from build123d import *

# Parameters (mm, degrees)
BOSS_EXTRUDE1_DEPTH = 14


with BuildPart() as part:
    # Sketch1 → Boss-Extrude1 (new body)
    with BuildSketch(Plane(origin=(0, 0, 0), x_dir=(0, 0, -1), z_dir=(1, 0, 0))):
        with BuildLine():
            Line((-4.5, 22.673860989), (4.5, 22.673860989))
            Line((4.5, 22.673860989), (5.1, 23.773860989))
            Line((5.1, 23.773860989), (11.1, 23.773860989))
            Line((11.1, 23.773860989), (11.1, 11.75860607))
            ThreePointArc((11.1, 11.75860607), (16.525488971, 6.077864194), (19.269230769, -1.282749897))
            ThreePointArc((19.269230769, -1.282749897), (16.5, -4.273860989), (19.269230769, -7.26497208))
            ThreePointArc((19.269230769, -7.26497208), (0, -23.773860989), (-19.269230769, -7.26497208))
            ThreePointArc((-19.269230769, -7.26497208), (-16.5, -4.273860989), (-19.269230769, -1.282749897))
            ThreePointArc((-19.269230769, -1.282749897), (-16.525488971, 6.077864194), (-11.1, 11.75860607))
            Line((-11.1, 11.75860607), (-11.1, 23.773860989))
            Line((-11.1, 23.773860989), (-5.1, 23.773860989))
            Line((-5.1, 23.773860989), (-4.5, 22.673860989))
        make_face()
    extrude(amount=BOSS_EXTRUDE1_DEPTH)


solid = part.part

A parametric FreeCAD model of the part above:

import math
import FreeCAD as App
import Part
import Sketcher
from FreeCAD import Vector
Q = App.Units.Quantity

doc = App.newDocument("Part")
body = doc.addObject("PartDesign::Body", "Body")

sketch1 = body.newObject("Sketcher::SketchObject", "Sketch")
sketch1.AttachmentSupport = (doc.getObject("YZ_Plane"), [""])
sketch1.MapMode = "FlatFace"
sketch1.addGeometry([
    Part.LineSegment(Vector(22.7, -4.5, 0), Vector(22.7, 4.5, 0)),
    Part.LineSegment(Vector(22.7, 4.5, 0), Vector(23.8, 5.1, 0)),
    Part.LineSegment(Vector(23.8, 5.1, 0), Vector(23.8, 11.1, 0)),
    Part.LineSegment(Vector(23.8, 11.1, 0), Vector(11.8, 11.1, 0)),
    Part.ArcOfCircle(Part.Circle(Vector(-4.3, 0, 0), Vector(0, 0, 1), 19.5), math.radians(35), math.radians(81)),
    Part.ArcOfCircle(Part.Circle(Vector(-4.3, 19.5, 0), Vector(0, 0, 1), 3), math.radians(-176), math.radians(-4)),
    Part.ArcOfCircle(Part.Circle(Vector(-4.3, 0, 0), Vector(0, 0, 1), 19.5), math.radians(99), math.radians(261)),
    Part.ArcOfCircle(Part.Circle(Vector(-4.3, -19.5, 0), Vector(0, 0, 1), 3), math.radians(4), math.radians(176)),
    Part.ArcOfCircle(Part.Circle(Vector(-4.3, 0, 0), Vector(0, 0, 1), 19.5), math.radians(-81), math.radians(-35)),
    Part.LineSegment(Vector(11.8, -11.1, 0), Vector(23.8, -11.1, 0)),
    Part.LineSegment(Vector(23.8, -11.1, 0), Vector(23.8, -5.1, 0)),
    Part.LineSegment(Vector(23.8, -5.1, 0), Vector(22.7, -4.5, 0)),
], False)
sketch1.addConstraint([
    Sketcher.Constraint("Coincident", 0, 2, 1, 1),
    Sketcher.Constraint("Coincident", 1, 2, 2, 1),
    Sketcher.Constraint("Coincident", 2, 2, 3, 1),
    Sketcher.Constraint("Coincident", 3, 2, 4, 1),
    Sketcher.Constraint("Coincident", 4, 2, 5, 2),
    Sketcher.Constraint("Coincident", 5, 1, 6, 1),
    Sketcher.Constraint("Coincident", 6, 2, 7, 2),
    Sketcher.Constraint("Coincident", 7, 1, 8, 1),
    Sketcher.Constraint("Coincident", 8, 2, 9, 1),
    Sketcher.Constraint("Coincident", 9, 2, 10, 1),
    Sketcher.Constraint("Coincident", 10, 2, 11, 1),
    Sketcher.Constraint("Coincident", 11, 2, 0, 1),
    Sketcher.Constraint("Vertical", 0),
    Sketcher.Constraint("Vertical", 2),
    Sketcher.Constraint("Horizontal", 3),
    Sketcher.Constraint("Horizontal", 9),
    Sketcher.Constraint("Vertical", 10),
    Sketcher.Constraint("Coincident", 6, 3, 4, 3),
    Sketcher.Constraint("Coincident", 8, 3, 4, 3),
    Sketcher.Constraint("Equal", 4, 6),
    Sketcher.Constraint("Equal", 5, 7),
    Sketcher.Constraint("Equal", 6, 8),
    Sketcher.Constraint("Symmetric", 5, 3, 7, 3, -1),
    Sketcher.Constraint("Symmetric", 3, 2, 8, 2, -1),
    Sketcher.Constraint("Symmetric", 1, 2, 10, 2, -1),
    Sketcher.Constraint("Horizontal", 4, 2, 5, 1),
    Sketcher.Constraint("Equal", 1, 11),
    Sketcher.Constraint("Radius", 5, Q("3 mm")),
    Sketcher.Constraint("Radius", 4, Q("19.5 mm")),
    Sketcher.Constraint("DistanceY", 0, 1, 0, 2, Q("9 mm")),
    Sketcher.Constraint("DistanceY", 2, 1, 2, 2, Q("6 mm")),
    Sketcher.Constraint("DistanceY", 7, 3, 5, 3, Q("39 mm")),
    Sketcher.Constraint("DistanceY", -1, 1, 1, 2, Q("5.1 mm")),
    Sketcher.Constraint("DistanceX", 0, 2, 1, 2, Q("1.1 mm")),
    Sketcher.Constraint("DistanceX", 3, 2, 3, 1, Q("12.015255 mm")),
    Sketcher.Constraint("DistanceX", 4, 3, -1, 1, Q("4.273861 mm")),
])
pad1 = body.newObject("PartDesign::Pad", "Pad")
pad1.Profile = sketch1
pad1.Length = 14

doc.recompute()
